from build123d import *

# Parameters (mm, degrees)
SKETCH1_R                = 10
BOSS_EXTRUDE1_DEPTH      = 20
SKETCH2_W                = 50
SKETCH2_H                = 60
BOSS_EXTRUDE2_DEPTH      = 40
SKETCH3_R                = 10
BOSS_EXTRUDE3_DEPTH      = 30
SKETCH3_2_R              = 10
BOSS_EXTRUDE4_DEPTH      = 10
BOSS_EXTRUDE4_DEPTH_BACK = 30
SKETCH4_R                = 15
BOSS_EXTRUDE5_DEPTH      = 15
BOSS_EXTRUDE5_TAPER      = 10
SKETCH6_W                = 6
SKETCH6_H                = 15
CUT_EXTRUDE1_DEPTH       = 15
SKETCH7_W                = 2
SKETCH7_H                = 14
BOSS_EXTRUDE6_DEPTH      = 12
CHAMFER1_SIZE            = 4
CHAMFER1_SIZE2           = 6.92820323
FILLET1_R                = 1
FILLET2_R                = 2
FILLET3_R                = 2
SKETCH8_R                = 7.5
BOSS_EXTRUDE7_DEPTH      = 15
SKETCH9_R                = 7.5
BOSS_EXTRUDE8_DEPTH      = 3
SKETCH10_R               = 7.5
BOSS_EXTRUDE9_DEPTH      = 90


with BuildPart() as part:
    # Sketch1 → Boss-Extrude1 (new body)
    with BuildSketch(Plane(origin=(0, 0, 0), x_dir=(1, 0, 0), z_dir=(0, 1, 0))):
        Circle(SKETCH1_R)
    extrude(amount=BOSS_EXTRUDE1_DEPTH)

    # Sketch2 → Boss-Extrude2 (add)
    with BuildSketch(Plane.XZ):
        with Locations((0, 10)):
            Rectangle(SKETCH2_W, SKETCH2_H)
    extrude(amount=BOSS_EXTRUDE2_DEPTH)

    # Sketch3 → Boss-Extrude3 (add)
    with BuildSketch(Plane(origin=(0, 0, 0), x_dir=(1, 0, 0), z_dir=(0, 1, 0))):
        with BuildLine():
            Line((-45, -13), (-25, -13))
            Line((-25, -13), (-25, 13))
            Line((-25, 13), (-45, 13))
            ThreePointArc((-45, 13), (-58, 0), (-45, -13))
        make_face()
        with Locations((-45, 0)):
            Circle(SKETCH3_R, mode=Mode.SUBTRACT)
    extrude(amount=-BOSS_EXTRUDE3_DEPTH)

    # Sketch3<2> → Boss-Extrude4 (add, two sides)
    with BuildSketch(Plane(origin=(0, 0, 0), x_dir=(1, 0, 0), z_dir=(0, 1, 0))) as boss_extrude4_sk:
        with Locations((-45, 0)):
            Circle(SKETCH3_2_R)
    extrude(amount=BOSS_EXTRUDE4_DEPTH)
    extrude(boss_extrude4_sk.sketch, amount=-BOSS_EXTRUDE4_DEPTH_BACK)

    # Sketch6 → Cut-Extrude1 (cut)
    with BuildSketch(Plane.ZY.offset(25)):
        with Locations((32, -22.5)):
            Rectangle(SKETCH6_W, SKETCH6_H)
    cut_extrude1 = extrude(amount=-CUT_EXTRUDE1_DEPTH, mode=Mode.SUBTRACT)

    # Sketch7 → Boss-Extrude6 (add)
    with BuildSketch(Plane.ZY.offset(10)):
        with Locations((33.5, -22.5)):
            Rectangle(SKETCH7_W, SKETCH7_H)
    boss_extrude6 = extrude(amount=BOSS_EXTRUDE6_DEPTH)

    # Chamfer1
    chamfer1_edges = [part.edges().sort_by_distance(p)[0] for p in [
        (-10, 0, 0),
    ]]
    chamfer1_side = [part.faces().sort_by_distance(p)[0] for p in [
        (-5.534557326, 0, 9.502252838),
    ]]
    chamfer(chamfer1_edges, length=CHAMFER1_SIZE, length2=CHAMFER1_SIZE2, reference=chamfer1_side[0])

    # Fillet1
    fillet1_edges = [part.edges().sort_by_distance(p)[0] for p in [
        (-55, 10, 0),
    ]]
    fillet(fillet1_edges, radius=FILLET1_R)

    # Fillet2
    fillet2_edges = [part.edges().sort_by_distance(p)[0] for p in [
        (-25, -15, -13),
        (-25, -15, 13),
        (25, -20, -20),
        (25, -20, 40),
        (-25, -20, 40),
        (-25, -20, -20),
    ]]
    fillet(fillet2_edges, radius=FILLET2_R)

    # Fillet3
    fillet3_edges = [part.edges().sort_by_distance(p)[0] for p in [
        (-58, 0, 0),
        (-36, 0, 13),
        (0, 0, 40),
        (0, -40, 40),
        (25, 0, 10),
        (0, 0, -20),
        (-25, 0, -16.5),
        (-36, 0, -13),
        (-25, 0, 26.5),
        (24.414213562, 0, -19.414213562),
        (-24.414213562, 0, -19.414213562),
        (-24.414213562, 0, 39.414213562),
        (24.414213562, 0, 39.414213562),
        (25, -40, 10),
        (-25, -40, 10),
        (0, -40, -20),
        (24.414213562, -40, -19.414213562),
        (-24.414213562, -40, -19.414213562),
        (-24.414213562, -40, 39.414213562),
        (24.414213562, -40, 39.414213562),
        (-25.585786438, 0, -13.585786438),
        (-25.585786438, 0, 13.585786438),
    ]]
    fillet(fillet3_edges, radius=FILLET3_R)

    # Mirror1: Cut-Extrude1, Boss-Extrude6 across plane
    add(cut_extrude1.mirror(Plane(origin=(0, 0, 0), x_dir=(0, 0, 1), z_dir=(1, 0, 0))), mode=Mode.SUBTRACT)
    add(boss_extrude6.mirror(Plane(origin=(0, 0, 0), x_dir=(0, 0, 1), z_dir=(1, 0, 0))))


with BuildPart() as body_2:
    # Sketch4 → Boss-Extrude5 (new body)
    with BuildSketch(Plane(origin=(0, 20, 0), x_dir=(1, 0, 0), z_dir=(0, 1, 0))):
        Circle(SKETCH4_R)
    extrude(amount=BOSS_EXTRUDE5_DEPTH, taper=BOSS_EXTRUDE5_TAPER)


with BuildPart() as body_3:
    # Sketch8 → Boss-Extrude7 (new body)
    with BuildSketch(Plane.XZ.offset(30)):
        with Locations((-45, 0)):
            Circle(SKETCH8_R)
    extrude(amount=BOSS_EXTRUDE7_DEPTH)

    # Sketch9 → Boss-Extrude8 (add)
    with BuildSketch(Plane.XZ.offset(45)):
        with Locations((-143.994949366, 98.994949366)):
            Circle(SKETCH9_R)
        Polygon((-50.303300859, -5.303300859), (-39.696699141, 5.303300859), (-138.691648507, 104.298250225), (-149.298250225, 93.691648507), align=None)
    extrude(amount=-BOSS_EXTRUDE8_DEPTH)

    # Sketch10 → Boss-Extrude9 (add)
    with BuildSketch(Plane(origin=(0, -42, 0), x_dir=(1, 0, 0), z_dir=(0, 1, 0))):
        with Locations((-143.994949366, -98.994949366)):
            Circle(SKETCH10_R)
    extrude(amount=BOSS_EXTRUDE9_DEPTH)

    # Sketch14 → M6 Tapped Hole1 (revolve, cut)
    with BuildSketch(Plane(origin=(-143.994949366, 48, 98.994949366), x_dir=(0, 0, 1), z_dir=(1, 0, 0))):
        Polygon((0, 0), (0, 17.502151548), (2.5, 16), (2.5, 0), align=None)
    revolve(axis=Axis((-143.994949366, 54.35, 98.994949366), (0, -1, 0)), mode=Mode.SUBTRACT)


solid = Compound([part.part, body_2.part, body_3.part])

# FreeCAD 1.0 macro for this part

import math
import FreeCAD as App
import Part
import Sketcher
from FreeCAD import Vector
Q = App.Units.Quantity


def edges_at(feature, points):
    """Names of the edges that pass closest to the given points."""
    edges = feature.Shape.Edges
    near = lambda p: min(range(len(edges)), key=lambda i: edges[i].distToShape(Part.Vertex(*p))[0])
    return sorted({f"Edge{near(p) + 1}" for p in points})

doc = App.newDocument("Part")
body = doc.addObject("PartDesign::Body", "Body")

# Sketch on XZ plane
sketch1 = body.newObject("Sketcher::SketchObject", "Sketch")
sketch1.AttachmentSupport = (doc.getObject("XZ_Plane"), [""])
sketch1.MapMode = "FlatFace"
sketch1.addGeometry(Part.Circle(Vector(0, 0, 0), Vector(0, 0, 1), 10), False)
sketch1.addConstraint(Sketcher.Constraint("Coincident", 0, 3, -1, 1))
sketch1.addConstraint(Sketcher.Constraint("Diameter", 0, Q("20 mm")))
pad1 = body.newObject("PartDesign::Pad", "Pad")
pad1.Profile = sketch1
pad1.Length = 20
pad1.Reversed = True

# Sketch on XZ plane
sketch2 = body.newObject("Sketcher::SketchObject", "Sketch001")
sketch2.AttachmentSupport = (doc.getObject("XZ_Plane"), [""])
sketch2.MapMode = "FlatFace"
sketch2.addGeometry(Part.LineSegment(Vector(-25, 40, 0), Vector(-25, -20, 0)), False)
sketch2.addGeometry(Part.LineSegment(Vector(-25, -20, 0), Vector(25, -20, 0)), False)
sketch2.addGeometry(Part.LineSegment(Vector(25, -20, 0), Vector(25, 40, 0)), False)
sketch2.addGeometry(Part.LineSegment(Vector(25, 40, 0), Vector(-25, 40, 0)), False)
sketch2.addConstraint(Sketcher.Constraint("Coincident", 0, 2, 1, 1))
sketch2.addConstraint(Sketcher.Constraint("Coincident", 1, 2, 2, 1))
sketch2.addConstraint(Sketcher.Constraint("Coincident", 2, 2, 3, 1))
sketch2.addConstraint(Sketcher.Constraint("Coincident", 3, 2, 0, 1))
sketch2.addConstraint(Sketcher.Constraint("Vertical", 0))
sketch2.addConstraint(Sketcher.Constraint("Horizontal", 1))
sketch2.addConstraint(Sketcher.Constraint("Vertical", 2))
sketch2.addConstraint(Sketcher.Constraint("Horizontal", 3))
sketch2.addConstraint(Sketcher.Constraint("DistanceX", 1, 1, 1, 2, Q("50 mm")))
sketch2.addConstraint(Sketcher.Constraint("DistanceY", 0, 2, 0, 1, Q("60 mm")))
sketch2.addConstraint(Sketcher.Constraint("DistanceX", 0, 2, -1, 1, Q("25 mm")))
sketch2.addConstraint(Sketcher.Constraint("DistanceY", 0, 2, -1, 1, Q("20 mm")))
pad2 = body.newObject("PartDesign::Pad", "Pad001")
pad2.Profile = sketch2
pad2.Length = 40

# Sketch on XZ plane
sketch3 = body.newObject("Sketcher::SketchObject", "Sketch002")
sketch3.AttachmentSupport = (doc.getObject("XZ_Plane"), [""])
sketch3.MapMode = "FlatFace"
sketch3.addGeometry(Part.LineSegment(Vector(-45, 13, 0), Vector(-25, 13, 0)), False)
sketch3.addGeometry(Part.LineSegment(Vector(-25, 13, 0), Vector(-25, -13, 0)), False)
sketch3.addGeometry(Part.LineSegment(Vector(-25, -13, 0), Vector(-45, -13, 0)), False)
sketch3.addGeometry(Part.ArcOfCircle(Part.Circle(Vector(-45, 0, 0), Vector(0, 0, 1), 13), math.radians(90), math.radians(270)), False)
sketch3.addGeometry(Part.Circle(Vector(-45, 0, 0), Vector(0, 0, 1), 10), False)
sketch3.addConstraint(Sketcher.Constraint("Coincident", 0, 2, 1, 1))
sketch3.addConstraint(Sketcher.Constraint("Coincident", 1, 2, 2, 1))
sketch3.addConstraint(Sketcher.Constraint("Tangent", 2, 2, 3, 2))
sketch3.addConstraint(Sketcher.Constraint("Tangent", 3, 1, 0, 1))
sketch3.addConstraint(Sketcher.Constraint("Horizontal", 0))
sketch3.addConstraint(Sketcher.Constraint("Vertical", 1))
sketch3.addConstraint(Sketcher.Constraint("Horizontal", 2))
sketch3.addConstraint(Sketcher.Constraint("Coincident", 4, 3, 3, 3))
sketch3.addConstraint(Sketcher.Constraint("PointOnObject", 3, 3, -1))
sketch3.addConstraint(Sketcher.Constraint("Diameter", 4, Q("20 mm")))
sketch3.addConstraint(Sketcher.Constraint("Radius", 3, Q("13 mm")))
sketch3.addConstraint(Sketcher.Constraint("DistanceX", 0, 1, 0, 2, Q("20 mm")))
sketch3.addConstraint(Sketcher.Constraint("DistanceX", 3, 3, -1, 1, Q("45 mm")))
pad3 = body.newObject("PartDesign::Pad", "Pad002")
pad3.Profile = sketch3
pad3.Length = 30

# Sketch on XZ plane
sketch4 = body.newObject("Sketcher::SketchObject", "Sketch003")
sketch4.AttachmentSupport = (doc.getObject("XZ_Plane"), [""])
sketch4.MapMode = "FlatFace"
sketch4.addGeometry(Part.Circle(Vector(-45, 0, 0), Vector(0, 0, 1), 10), False)
sketch4.addConstraint(Sketcher.Constraint("PointOnObject", 0, 3, -1))
sketch4.addConstraint(Sketcher.Constraint("Diameter", 0, Q("20 mm")))
sketch4.addConstraint(Sketcher.Constraint("DistanceX", 0, 3, -1, 1, Q("45 mm")))
pad4 = body.newObject("PartDesign::Pad", "Pad003")
pad4.Profile = sketch4
pad4.Type = "TwoLengths"
pad4.Length = 10
pad4.Length2 = 30
pad4.Reversed = True

# Sketch on YZ plane
sketch5 = body.newObject("Sketcher::SketchObject", "Sketch004")
sketch5.AttachmentSupport = (doc.getObject("YZ_Plane"), [""])
sketch5.MapMode = "FlatFace"
sketch5.AttachmentOffset = App.Placement(Vector(0, 0, -25), App.Rotation())
sketch5.addGeometry(Part.LineSegment(Vector(-15, 29, 0), Vector(-30, 29, 0)), False)
sketch5.addGeometry(Part.LineSegment(Vector(-30, 29, 0), Vector(-30, 35, 0)), False)
sketch5.addGeometry(Part.LineSegment(Vector(-30, 35, 0), Vector(-15, 35, 0)), False)
sketch5.addGeometry(Part.LineSegment(Vector(-15, 35, 0), Vector(-15, 29, 0)), False)
sketch5.addConstraint(Sketcher.Constraint("Coincident", 0, 2, 1, 1))
sketch5.addConstraint(Sketcher.Constraint("Coincident", 1, 2, 2, 1))
sketch5.addConstraint(Sketcher.Constraint("Coincident", 2, 2, 3, 1))
sketch5.addConstraint(Sketcher.Constraint("Coincident", 3, 2, 0, 1))
sketch5.addConstraint(Sketcher.Constraint("Horizontal", 0))
sketch5.addConstraint(Sketcher.Constraint("Vertical", 1))
sketch5.addConstraint(Sketcher.Constraint("Horizontal", 2))
sketch5.addConstraint(Sketcher.Constraint("Vertical", 3))
sketch5.addConstraint(Sketcher.Constraint("DistanceX", 0, 2, 0, 1, Q("15 mm")))
sketch5.addConstraint(Sketcher.Constraint("DistanceY", 1, 1, 1, 2, Q("6 mm")))
sketch5.addConstraint(Sketcher.Constraint("DistanceX", 0, 2, -1, 1, Q("30 mm")))
sketch5.addConstraint(Sketcher.Constraint("DistanceY", -1, 1, 0, 2, Q("29 mm")))
pocket1 = body.newObject("PartDesign::Pocket", "Pocket")
pocket1.Profile = sketch5
pocket1.Length = 15
pocket1.Reversed = True

# Sketch on YZ plane
sketch6 = body.newObject("Sketcher::SketchObject", "Sketch005")
sketch6.AttachmentSupport = (doc.getObject("YZ_Plane"), [""])
sketch6.MapMode = "FlatFace"
sketch6.AttachmentOffset = App.Placement(Vector(0, 0, -10), App.Rotation())
sketch6.addGeometry(Part.LineSegment(Vector(-15.5, 32.5, 0), Vector(-29.5, 32.5, 0)), False)
sketch6.addGeometry(Part.LineSegment(Vector(-29.5, 32.5, 0), Vector(-29.5, 34.5, 0)), False)
sketch6.addGeometry(Part.LineSegment(Vector(-29.5, 34.5, 0), Vector(-15.5, 34.5, 0)), False)
sketch6.addGeometry(Part.LineSegment(Vector(-15.5, 34.5, 0), Vector(-15.5, 32.5, 0)), False)
sketch6.addConstraint(Sketcher.Constraint("Coincident", 0, 2, 1, 1))
sketch6.addConstraint(Sketcher.Constraint("Coincident", 1, 2, 2, 1))
sketch6.addConstraint(Sketcher.Constraint("Coincident", 2, 2, 3, 1))
sketch6.addConstraint(Sketcher.Constraint("Coincident", 3, 2, 0, 1))
sketch6.addConstraint(Sketcher.Constraint("Horizontal", 0))
sketch6.addConstraint(Sketcher.Constraint("Vertical", 1))
sketch6.addConstraint(Sketcher.Constraint("Horizontal", 2))
sketch6.addConstraint(Sketcher.Constraint("Vertical", 3))
sketch6.addConstraint(Sketcher.Constraint("DistanceX", 0, 2, 0, 1, Q("14 mm")))
sketch6.addConstraint(Sketcher.Constraint("DistanceY", 1, 1, 1, 2, Q("2 mm")))
sketch6.addConstraint(Sketcher.Constraint("DistanceX", 0, 2, -1, 1, Q("29.5 mm")))
sketch6.addConstraint(Sketcher.Constraint("DistanceY", -1, 1, 0, 2, Q("32.5 mm")))
pad5 = body.newObject("PartDesign::Pad", "Pad004")
pad5.Profile = sketch6
pad5.Length = 12
pad5.Reversed = True
doc.recompute()

chamfer = body.newObject("PartDesign::Chamfer", "Chamfer")
chamfer.Base = (pad5, edges_at(pad5, [(-10, 0, 0)]))
chamfer.ChamferType = "Two distances"
chamfer.Size = 4
chamfer.Size2 = 6.928203
doc.recompute()

fillet = body.newObject("PartDesign::Fillet", "Fillet")
fillet.Base = (chamfer, edges_at(chamfer, [(-55, 10, 0)]))
fillet.Radius = 1
doc.recompute()

fillet2 = body.newObject("PartDesign::Fillet", "Fillet001")
fillet2.Base = (fillet, edges_at(fillet, [
    (-25, -15, -13),
    (-25, -15, 13),
    (25, -20, -20),
    (25, -20, 40),
    (-25, -20, 40),
    (-25, -20, -20),
]))
fillet2.Radius = 2
doc.recompute()

fillet3 = body.newObject("PartDesign::Fillet", "Fillet002")
fillet3.Base = (fillet2, edges_at(fillet2, [
    (-58, 0, 0),
    (-36, 0, 13),
    (0, 0, 40),
    (0, -40, 40),
    (25, 0, 10),
    (0, 0, -20),
    (-25, 0, -16.5),
    (-36, 0, -13),
    (-25, 0, 26.5),
    (24.414, 0, -19.414),
    (-24.414, 0, -19.414),
    (-24.414, 0, 39.414),
    (24.414, 0, 39.414),
    (25, -40, 10),
    (-25, -40, 10),
    (0, -40, -20),
    (24.414, -40, -19.414),
    (-24.414, -40, -19.414),
    (-24.414, -40, 39.414),
    (24.414, -40, 39.414),
    (-25.586, 0, -13.586),
    (-25.586, 0, 13.586),
]))
fillet3.Radius = 2
doc.recompute()

mirrored = body.newObject("PartDesign::Mirrored", "Mirrored")
mirrored.Originals = [pocket1, pad5]
mirrored.MirrorPlane = (doc.getObject("YZ_Plane"), [""])
body.Tip = mirrored
body2 = doc.addObject("PartDesign::Body", "Body001")

# Sketch on XZ plane
sketch7 = body2.newObject("Sketcher::SketchObject", "Sketch006")
sketch7.AttachmentSupport = (doc.getObject("XZ_Plane001"), [""])
sketch7.MapMode = "FlatFace"
sketch7.AttachmentOffset = App.Placement(Vector(0, 0, -20), App.Rotation())
sketch7.addGeometry(Part.Circle(Vector(0, 0, 0), Vector(0, 0, 1), 15), False)
sketch7.addConstraint(Sketcher.Constraint("Coincident", 0, 3, -1, 1))
sketch7.addConstraint(Sketcher.Constraint("Diameter", 0, Q("30 mm")))
pad6 = body2.newObject("PartDesign::Pad", "Pad005")
pad6.Profile = sketch7
pad6.Length = 15
pad6.Reversed = True
pad6.TaperAngle = -10
body3 = doc.addObject("PartDesign::Body", "Body002")

# Sketch on XZ plane
sketch8 = body3.newObject("Sketcher::SketchObject", "Sketch007")
sketch8.AttachmentSupport = (doc.getObject("XZ_Plane002"), [""])
sketch8.MapMode = "FlatFace"
sketch8.AttachmentOffset = App.Placement(Vector(0, 0, 30), App.Rotation())
sketch8.addGeometry(Part.Circle(Vector(-45, 0, 0), Vector(0, 0, 1), 8), False)
sketch8.addConstraint(Sketcher.Constraint("PointOnObject", 0, 3, -1))
sketch8.addConstraint(Sketcher.Constraint("Diameter", 0, Q("15 mm")))
sketch8.addConstraint(Sketcher.Constraint("DistanceX", 0, 3, -1, 1, Q("45 mm")))
pad7 = body3.newObject("PartDesign::Pad", "Pad006")
pad7.Profile = sketch8
pad7.Length = 15

# Sketch on XZ plane
sketch9 = body3.newObject("Sketcher::SketchObject", "Sketch008")
sketch9.AttachmentSupport = (doc.getObject("XZ_Plane002"), [""])
sketch9.MapMode = "FlatFace"
sketch9.AttachmentOffset = App.Placement(Vector(0, 0, 45), App.Rotation())
sketch9.addGeometry(Part.LineSegment(Vector(-149, 94, 0), Vector(-50, -5, 0)), False)
sketch9.addGeometry(Part.LineSegment(Vector(-50, -5, 0), Vector(-40, 5, 0)), False)
sketch9.addGeometry(Part.LineSegment(Vector(-40, 5, 0), Vector(-139, 104, 0)), False)
sketch9.addGeometry(Part.ArcOfCircle(Part.Circle(Vector(-144, 99, 0), Vector(0, 0, 1), 8), math.radians(45), math.radians(225)), False)
sketch9.addConstraint(Sketcher.Constraint("Coincident", 0, 2, 1, 1))
sketch9.addConstraint(Sketcher.Constraint("Coincident", 1, 2, 2, 1))
sketch9.addConstraint(Sketcher.Constraint("Tangent", 2, 2, 3, 1))
sketch9.addConstraint(Sketcher.Constraint("Tangent", 3, 2, 0, 1))
sketch9.addConstraint(Sketcher.Constraint("Perpendicular", 0, 1))
sketch9.addConstraint(Sketcher.Constraint("Perpendicular", 1, 2))
sketch9.addConstraint(Sketcher.Constraint("Radius", 3, Q("7.5 mm")))
sketch9.addConstraint(Sketcher.Constraint("Angle", 0, Q("-45 deg")))
sketch9.addConstraint(Sketcher.Constraint("Distance", 0, Q("140 mm")))
sketch9.addConstraint(Sketcher.Constraint("DistanceX", 0, 2, -1, 1, Q("50.303301 mm")))
sketch9.addConstraint(Sketcher.Constraint("DistanceY", 0, 2, -1, 1, Q("5.303301 mm")))
pad8 = body3.newObject("PartDesign::Pad", "Pad007")
pad8.Profile = sketch9
pad8.Length = 3
pad8.Reversed = True

# Sketch on XZ plane
sketch10 = body3.newObject("Sketcher::SketchObject", "Sketch009")
sketch10.AttachmentSupport = (doc.getObject("XZ_Plane002"), [""])
sketch10.MapMode = "FlatFace"
sketch10.AttachmentOffset = App.Placement(Vector(0, 0, 42), App.Rotation())
sketch10.addGeometry(Part.Circle(Vector(-144, 99, 0), Vector(0, 0, 1), 8), False)
sketch10.addConstraint(Sketcher.Constraint("Diameter", 0, Q("15 mm")))
sketch10.addConstraint(Sketcher.Constraint("DistanceX", 0, 3, -1, 1, Q("143.994949 mm")))
sketch10.addConstraint(Sketcher.Constraint("DistanceY", -1, 1, 0, 3, Q("98.994949 mm")))
pad9 = body3.newObject("PartDesign::Pad", "Pad008")
pad9.Profile = sketch10
pad9.Length = 90
pad9.Reversed = True

# Sketch on YZ plane
sketch11 = body3.newObject("Sketcher::SketchObject", "Sketch010")
sketch11.AttachmentSupport = (doc.getObject("YZ_Plane002"), [""])
sketch11.MapMode = "FlatFace"
sketch11.AttachmentOffset = App.Placement(Vector(0, 0, -143.994949), App.Rotation())
sketch11.addGeometry(Part.LineSegment(Vector(30.5, 99, 0), Vector(48, 99, 0)), False)
sketch11.addGeometry(Part.LineSegment(Vector(48, 99, 0), Vector(48, 101.5, 0)), False)
sketch11.addGeometry(Part.LineSegment(Vector(48, 101.5, 0), Vector(32, 101.5, 0)), False)
sketch11.addGeometry(Part.LineSegment(Vector(32, 101.5, 0), Vector(30.5, 99, 0)), False)
sketch11.addGeometry(Part.LineSegment(Vector(48, 99, 0), Vector(30.5, 99, 0)), True)  # axis
sketch11.addConstraint(Sketcher.Constraint("Coincident", 0, 2, 1, 1))
sketch11.addConstraint(Sketcher.Constraint("Coincident", 1, 2, 2, 1))
sketch11.addConstraint(Sketcher.Constraint("Coincident", 2, 2, 3, 1))
sketch11.addConstraint(Sketcher.Constraint("Coincident", 3, 2, 0, 1))
sketch11.addConstraint(Sketcher.Constraint("Horizontal", 0))
sketch11.addConstraint(Sketcher.Constraint("Vertical", 1))
sketch11.addConstraint(Sketcher.Constraint("Horizontal", 2))
sketch11.addConstraint(Sketcher.Constraint("Horizontal", 4))
sketch11.addConstraint(Sketcher.Constraint("Coincident", 4, 1, 0, 2))
sketch11.addConstraint(Sketcher.Constraint("Equal", 0, 4))
sketch11.addConstraint(Sketcher.Constraint("DistanceX", 2, 2, 2, 1, Q("16 mm")))
sketch11.addConstraint(Sketcher.Constraint("Angle", 3, Q("-121 deg")))
sketch11.addConstraint(Sketcher.Constraint("DistanceY", 1, 1, 1, 2, Q("2.5 mm")))
sketch11.addConstraint(Sketcher.Constraint("DistanceX", -1, 1, 0, 2, Q("48 mm")))
sketch11.addConstraint(Sketcher.Constraint("DistanceY", -1, 1, 0, 2, Q("98.994949 mm")))
groove = body3.newObject("PartDesign::Groove", "Groove")
groove.Profile = sketch11
groove.ReferenceAxis = (sketch11, ["Axis0"])
groove.Angle = 360

doc.recompute()
